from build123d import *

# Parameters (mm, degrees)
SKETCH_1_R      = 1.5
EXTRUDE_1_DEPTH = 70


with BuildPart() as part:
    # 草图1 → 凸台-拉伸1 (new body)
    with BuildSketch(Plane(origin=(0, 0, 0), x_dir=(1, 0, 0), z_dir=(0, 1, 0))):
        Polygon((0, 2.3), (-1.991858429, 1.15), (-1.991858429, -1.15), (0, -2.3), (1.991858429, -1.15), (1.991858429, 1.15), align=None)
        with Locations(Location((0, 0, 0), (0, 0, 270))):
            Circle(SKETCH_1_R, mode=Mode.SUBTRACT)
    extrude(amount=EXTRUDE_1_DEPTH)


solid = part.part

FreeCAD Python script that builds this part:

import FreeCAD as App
import Part
import Sketcher
Q = App.Units.Quantity

doc = App.newDocument("Part")
body = doc.addObject("PartDesign::Body", "Body")

sketch1 = body.newObject("Sketcher::SketchObject", "Sketch")
sketch1.AttachmentSupport = (doc.getObject("XZ_Plane"), [""])
sketch1.MapMode = "FlatFace"
sketch1.addGeometry([
    Part.LineSegment(App.Vector(0, -2.3, 0), App.Vector(-1.991858, -1.15, 0)),
    Part.LineSegment(App.Vector(-1.991858, -1.15, 0), App.Vector(-1.991858, 1.15, 0)),
    Part.LineSegment(App.Vector(-1.991858, 1.15, 0), App.Vector(0, 2.3, 0)),
    Part.LineSegment(App.Vector(0, 2.3, 0), App.Vector(1.991858, 1.15, 0)),
    Part.LineSegment(App.Vector(1.991858, 1.15, 0), App.Vector(1.991858, -1.15, 0)),
    Part.LineSegment(App.Vector(1.991858, -1.15, 0), App.Vector(0, -2.3, 0)),
    Part.Circle(App.Vector(0, 0, 0), App.Vector(0, 0, 1), 1.5),
], False)
sketch1.addConstraint([
    Sketcher.Constraint("Coincident", 0, 2, 1, 1),
    Sketcher.Constraint("Coincident", 1, 2, 2, 1),
    Sketcher.Constraint("Coincident", 2, 2, 3, 1),
    Sketcher.Constraint("Coincident", 3, 2, 4, 1),
    Sketcher.Constraint("Coincident", 4, 2, 5, 1),
    Sketcher.Constraint("Coincident", 5, 2, 0, 1),
    Sketcher.Constraint("Vertical", 1),
    Sketcher.Constraint("Vertical", 4),
    Sketcher.Constraint("Coincident", 6, 3, -1, 1),
    Sketcher.Constraint("Symmetric", 0, 2, 3, 2, -1, 1),
    Sketcher.Constraint("Symmetric", 2, 2, 5, 2, -1, 1),
    Sketcher.Constraint("PointOnObject", 2, 2, -2),
    Sketcher.Constraint("Parallel", 2, 5),
    Sketcher.Constraint("Horizontal", 1, 2, 3, 2),
    Sketcher.Constraint("Diameter", 6, Q("3 mm")),
    Sketcher.Constraint("Angle", 0, Q("150 deg")),
    Sketcher.Constraint("DistanceY", 1, 1, 1, 2, Q("2.3 mm")),
    Sketcher.Constraint("Distance", 0, Q("2.3 mm")),
])
pad1 = body.newObject("PartDesign::Pad", "Pad")
pad1.Profile = sketch1
pad1.Length = 70
pad1.Reversed = True

doc.recompute()
